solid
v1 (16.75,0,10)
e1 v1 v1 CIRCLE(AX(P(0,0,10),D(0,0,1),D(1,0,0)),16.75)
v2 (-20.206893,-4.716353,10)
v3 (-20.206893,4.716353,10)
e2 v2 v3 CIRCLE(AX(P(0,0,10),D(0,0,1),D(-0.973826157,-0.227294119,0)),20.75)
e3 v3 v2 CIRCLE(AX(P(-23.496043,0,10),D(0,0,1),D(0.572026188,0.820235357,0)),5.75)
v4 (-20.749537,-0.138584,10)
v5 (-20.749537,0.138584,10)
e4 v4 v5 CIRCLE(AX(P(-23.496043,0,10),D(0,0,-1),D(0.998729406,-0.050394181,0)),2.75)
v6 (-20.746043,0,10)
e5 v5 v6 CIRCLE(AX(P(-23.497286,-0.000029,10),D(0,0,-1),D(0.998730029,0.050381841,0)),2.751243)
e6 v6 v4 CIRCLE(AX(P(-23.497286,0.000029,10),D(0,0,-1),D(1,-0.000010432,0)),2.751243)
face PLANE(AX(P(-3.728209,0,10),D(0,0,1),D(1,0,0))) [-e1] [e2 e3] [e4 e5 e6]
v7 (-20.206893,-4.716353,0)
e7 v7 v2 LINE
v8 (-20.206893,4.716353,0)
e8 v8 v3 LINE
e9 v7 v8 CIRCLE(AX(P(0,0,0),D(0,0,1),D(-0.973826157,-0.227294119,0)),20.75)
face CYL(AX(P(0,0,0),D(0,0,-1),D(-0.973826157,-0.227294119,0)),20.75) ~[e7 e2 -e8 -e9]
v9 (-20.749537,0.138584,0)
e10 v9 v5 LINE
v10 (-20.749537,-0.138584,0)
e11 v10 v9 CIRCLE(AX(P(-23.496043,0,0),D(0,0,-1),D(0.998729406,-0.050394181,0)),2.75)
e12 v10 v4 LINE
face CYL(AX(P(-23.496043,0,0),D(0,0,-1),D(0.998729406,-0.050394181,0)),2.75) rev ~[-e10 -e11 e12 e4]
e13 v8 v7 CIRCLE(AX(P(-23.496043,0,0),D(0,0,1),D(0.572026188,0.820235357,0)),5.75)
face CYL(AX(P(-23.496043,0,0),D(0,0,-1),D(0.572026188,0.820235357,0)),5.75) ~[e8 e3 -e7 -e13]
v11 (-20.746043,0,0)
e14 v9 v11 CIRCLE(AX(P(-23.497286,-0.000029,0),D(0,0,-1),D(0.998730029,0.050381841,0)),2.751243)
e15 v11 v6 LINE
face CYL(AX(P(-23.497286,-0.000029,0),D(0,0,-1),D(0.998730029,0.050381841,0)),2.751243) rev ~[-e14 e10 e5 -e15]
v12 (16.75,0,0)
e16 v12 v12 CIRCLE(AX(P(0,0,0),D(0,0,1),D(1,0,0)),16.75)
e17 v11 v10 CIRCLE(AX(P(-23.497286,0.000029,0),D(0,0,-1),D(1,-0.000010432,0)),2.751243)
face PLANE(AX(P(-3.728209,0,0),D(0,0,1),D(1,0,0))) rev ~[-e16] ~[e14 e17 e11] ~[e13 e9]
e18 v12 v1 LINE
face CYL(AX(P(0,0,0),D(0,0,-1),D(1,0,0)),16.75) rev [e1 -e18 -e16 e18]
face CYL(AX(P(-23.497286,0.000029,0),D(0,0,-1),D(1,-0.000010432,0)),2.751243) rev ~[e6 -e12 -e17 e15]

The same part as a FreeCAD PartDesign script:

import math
import FreeCAD as App
import Part
import Sketcher
from FreeCAD import Vector
Q = App.Units.Quantity

doc = App.newDocument("Part")
body = doc.addObject("PartDesign::Body", "Body")

# Sketch on XY plane
sketch1 = doc.addObject("Sketcher::SketchObject", "Sketch")
body.addObject(sketch1)
sketch1.AttachmentSupport = (doc.XY_Plane, [""])
sketch1.MapMode = "FlatFace"
sketch1.addGeometry([
    Part.ArcOfCircle(Part.Circle(Vector(0, 0, 0), Vector(0, 0, 1), 20.75), math.radians(-167), math.radians(167)),  # 0
    Part.ArcOfCircle(Part.Circle(Vector(-23.5, 0, 0), Vector(0, 0, 1), 5.75), math.radians(55), math.radians(305)),  # 1
    Part.ArcOfCircle(Part.Circle(Vector(-23.5, 0, 0), Vector(0, 0, 1), 2.75), math.radians(-2.89), math.radians(0)),  # 2
    Part.ArcOfCircle(Part.Circle(Vector(-23.5, 0, 0), Vector(0, 0, 1), 2.75), math.radians(3), math.radians(357)),  # 3
    Part.ArcOfCircle(Part.Circle(Vector(-23.5, 0, 0), Vector(0, 0, 1), 2.75), math.radians(0), math.radians(2.89)),  # 4
    Part.Circle(Vector(0, 0, 0), Vector(0, 0, 1), 16.75),  # 5
], False)
sketch1.addConstraint([
    Sketcher.Constraint("Coincident", 0, 1, 1, 2),
    Sketcher.Constraint("Coincident", 1, 1, 0, 2),
    Sketcher.Constraint("Coincident", 2, 1, 3, 2),
    Sketcher.Constraint("Coincident", 3, 1, 4, 2),
    Sketcher.Constraint("Coincident", 4, 1, 2, 2),
    Sketcher.Constraint("Coincident", 0, 3, -1, 1),
    Sketcher.Constraint("Coincident", 5, 3, -1, 1),
    Sketcher.Constraint("Coincident", 3, 3, 1, 3),
    Sketcher.Constraint("Equal", 2, 4),
    Sketcher.Constraint("Symmetric", 2, 1, 3, 1, -1),
    Sketcher.Constraint("PointOnObject", 4, 1, -1),
    Sketcher.Constraint("Diameter", 5, Q("33.5 mm")),
    Sketcher.Constraint("Radius", 0, Q("20.75 mm")),
    Sketcher.Constraint("Radius", 1, Q("5.75 mm")),
    Sketcher.Constraint("Radius", 3, Q("2.75 mm")),
    Sketcher.Constraint("DistanceX", 3, 3, 4, 1, Q("2.75 mm")),
    Sketcher.Constraint("Radius", 2, Q("2.751243 mm")),
    Sketcher.Constraint("DistanceX", 3, 3, 0, 1, Q("3.28915 mm")),
    Sketcher.Constraint("DistanceX", 4, 3, 2, 1, Q("2.747749 mm")),
])
pad1 = doc.addObject("PartDesign::Pad", "Pad")
body.addObject(pad1)
pad1.Profile = sketch1
pad1.Length = 10

doc.recompute()
